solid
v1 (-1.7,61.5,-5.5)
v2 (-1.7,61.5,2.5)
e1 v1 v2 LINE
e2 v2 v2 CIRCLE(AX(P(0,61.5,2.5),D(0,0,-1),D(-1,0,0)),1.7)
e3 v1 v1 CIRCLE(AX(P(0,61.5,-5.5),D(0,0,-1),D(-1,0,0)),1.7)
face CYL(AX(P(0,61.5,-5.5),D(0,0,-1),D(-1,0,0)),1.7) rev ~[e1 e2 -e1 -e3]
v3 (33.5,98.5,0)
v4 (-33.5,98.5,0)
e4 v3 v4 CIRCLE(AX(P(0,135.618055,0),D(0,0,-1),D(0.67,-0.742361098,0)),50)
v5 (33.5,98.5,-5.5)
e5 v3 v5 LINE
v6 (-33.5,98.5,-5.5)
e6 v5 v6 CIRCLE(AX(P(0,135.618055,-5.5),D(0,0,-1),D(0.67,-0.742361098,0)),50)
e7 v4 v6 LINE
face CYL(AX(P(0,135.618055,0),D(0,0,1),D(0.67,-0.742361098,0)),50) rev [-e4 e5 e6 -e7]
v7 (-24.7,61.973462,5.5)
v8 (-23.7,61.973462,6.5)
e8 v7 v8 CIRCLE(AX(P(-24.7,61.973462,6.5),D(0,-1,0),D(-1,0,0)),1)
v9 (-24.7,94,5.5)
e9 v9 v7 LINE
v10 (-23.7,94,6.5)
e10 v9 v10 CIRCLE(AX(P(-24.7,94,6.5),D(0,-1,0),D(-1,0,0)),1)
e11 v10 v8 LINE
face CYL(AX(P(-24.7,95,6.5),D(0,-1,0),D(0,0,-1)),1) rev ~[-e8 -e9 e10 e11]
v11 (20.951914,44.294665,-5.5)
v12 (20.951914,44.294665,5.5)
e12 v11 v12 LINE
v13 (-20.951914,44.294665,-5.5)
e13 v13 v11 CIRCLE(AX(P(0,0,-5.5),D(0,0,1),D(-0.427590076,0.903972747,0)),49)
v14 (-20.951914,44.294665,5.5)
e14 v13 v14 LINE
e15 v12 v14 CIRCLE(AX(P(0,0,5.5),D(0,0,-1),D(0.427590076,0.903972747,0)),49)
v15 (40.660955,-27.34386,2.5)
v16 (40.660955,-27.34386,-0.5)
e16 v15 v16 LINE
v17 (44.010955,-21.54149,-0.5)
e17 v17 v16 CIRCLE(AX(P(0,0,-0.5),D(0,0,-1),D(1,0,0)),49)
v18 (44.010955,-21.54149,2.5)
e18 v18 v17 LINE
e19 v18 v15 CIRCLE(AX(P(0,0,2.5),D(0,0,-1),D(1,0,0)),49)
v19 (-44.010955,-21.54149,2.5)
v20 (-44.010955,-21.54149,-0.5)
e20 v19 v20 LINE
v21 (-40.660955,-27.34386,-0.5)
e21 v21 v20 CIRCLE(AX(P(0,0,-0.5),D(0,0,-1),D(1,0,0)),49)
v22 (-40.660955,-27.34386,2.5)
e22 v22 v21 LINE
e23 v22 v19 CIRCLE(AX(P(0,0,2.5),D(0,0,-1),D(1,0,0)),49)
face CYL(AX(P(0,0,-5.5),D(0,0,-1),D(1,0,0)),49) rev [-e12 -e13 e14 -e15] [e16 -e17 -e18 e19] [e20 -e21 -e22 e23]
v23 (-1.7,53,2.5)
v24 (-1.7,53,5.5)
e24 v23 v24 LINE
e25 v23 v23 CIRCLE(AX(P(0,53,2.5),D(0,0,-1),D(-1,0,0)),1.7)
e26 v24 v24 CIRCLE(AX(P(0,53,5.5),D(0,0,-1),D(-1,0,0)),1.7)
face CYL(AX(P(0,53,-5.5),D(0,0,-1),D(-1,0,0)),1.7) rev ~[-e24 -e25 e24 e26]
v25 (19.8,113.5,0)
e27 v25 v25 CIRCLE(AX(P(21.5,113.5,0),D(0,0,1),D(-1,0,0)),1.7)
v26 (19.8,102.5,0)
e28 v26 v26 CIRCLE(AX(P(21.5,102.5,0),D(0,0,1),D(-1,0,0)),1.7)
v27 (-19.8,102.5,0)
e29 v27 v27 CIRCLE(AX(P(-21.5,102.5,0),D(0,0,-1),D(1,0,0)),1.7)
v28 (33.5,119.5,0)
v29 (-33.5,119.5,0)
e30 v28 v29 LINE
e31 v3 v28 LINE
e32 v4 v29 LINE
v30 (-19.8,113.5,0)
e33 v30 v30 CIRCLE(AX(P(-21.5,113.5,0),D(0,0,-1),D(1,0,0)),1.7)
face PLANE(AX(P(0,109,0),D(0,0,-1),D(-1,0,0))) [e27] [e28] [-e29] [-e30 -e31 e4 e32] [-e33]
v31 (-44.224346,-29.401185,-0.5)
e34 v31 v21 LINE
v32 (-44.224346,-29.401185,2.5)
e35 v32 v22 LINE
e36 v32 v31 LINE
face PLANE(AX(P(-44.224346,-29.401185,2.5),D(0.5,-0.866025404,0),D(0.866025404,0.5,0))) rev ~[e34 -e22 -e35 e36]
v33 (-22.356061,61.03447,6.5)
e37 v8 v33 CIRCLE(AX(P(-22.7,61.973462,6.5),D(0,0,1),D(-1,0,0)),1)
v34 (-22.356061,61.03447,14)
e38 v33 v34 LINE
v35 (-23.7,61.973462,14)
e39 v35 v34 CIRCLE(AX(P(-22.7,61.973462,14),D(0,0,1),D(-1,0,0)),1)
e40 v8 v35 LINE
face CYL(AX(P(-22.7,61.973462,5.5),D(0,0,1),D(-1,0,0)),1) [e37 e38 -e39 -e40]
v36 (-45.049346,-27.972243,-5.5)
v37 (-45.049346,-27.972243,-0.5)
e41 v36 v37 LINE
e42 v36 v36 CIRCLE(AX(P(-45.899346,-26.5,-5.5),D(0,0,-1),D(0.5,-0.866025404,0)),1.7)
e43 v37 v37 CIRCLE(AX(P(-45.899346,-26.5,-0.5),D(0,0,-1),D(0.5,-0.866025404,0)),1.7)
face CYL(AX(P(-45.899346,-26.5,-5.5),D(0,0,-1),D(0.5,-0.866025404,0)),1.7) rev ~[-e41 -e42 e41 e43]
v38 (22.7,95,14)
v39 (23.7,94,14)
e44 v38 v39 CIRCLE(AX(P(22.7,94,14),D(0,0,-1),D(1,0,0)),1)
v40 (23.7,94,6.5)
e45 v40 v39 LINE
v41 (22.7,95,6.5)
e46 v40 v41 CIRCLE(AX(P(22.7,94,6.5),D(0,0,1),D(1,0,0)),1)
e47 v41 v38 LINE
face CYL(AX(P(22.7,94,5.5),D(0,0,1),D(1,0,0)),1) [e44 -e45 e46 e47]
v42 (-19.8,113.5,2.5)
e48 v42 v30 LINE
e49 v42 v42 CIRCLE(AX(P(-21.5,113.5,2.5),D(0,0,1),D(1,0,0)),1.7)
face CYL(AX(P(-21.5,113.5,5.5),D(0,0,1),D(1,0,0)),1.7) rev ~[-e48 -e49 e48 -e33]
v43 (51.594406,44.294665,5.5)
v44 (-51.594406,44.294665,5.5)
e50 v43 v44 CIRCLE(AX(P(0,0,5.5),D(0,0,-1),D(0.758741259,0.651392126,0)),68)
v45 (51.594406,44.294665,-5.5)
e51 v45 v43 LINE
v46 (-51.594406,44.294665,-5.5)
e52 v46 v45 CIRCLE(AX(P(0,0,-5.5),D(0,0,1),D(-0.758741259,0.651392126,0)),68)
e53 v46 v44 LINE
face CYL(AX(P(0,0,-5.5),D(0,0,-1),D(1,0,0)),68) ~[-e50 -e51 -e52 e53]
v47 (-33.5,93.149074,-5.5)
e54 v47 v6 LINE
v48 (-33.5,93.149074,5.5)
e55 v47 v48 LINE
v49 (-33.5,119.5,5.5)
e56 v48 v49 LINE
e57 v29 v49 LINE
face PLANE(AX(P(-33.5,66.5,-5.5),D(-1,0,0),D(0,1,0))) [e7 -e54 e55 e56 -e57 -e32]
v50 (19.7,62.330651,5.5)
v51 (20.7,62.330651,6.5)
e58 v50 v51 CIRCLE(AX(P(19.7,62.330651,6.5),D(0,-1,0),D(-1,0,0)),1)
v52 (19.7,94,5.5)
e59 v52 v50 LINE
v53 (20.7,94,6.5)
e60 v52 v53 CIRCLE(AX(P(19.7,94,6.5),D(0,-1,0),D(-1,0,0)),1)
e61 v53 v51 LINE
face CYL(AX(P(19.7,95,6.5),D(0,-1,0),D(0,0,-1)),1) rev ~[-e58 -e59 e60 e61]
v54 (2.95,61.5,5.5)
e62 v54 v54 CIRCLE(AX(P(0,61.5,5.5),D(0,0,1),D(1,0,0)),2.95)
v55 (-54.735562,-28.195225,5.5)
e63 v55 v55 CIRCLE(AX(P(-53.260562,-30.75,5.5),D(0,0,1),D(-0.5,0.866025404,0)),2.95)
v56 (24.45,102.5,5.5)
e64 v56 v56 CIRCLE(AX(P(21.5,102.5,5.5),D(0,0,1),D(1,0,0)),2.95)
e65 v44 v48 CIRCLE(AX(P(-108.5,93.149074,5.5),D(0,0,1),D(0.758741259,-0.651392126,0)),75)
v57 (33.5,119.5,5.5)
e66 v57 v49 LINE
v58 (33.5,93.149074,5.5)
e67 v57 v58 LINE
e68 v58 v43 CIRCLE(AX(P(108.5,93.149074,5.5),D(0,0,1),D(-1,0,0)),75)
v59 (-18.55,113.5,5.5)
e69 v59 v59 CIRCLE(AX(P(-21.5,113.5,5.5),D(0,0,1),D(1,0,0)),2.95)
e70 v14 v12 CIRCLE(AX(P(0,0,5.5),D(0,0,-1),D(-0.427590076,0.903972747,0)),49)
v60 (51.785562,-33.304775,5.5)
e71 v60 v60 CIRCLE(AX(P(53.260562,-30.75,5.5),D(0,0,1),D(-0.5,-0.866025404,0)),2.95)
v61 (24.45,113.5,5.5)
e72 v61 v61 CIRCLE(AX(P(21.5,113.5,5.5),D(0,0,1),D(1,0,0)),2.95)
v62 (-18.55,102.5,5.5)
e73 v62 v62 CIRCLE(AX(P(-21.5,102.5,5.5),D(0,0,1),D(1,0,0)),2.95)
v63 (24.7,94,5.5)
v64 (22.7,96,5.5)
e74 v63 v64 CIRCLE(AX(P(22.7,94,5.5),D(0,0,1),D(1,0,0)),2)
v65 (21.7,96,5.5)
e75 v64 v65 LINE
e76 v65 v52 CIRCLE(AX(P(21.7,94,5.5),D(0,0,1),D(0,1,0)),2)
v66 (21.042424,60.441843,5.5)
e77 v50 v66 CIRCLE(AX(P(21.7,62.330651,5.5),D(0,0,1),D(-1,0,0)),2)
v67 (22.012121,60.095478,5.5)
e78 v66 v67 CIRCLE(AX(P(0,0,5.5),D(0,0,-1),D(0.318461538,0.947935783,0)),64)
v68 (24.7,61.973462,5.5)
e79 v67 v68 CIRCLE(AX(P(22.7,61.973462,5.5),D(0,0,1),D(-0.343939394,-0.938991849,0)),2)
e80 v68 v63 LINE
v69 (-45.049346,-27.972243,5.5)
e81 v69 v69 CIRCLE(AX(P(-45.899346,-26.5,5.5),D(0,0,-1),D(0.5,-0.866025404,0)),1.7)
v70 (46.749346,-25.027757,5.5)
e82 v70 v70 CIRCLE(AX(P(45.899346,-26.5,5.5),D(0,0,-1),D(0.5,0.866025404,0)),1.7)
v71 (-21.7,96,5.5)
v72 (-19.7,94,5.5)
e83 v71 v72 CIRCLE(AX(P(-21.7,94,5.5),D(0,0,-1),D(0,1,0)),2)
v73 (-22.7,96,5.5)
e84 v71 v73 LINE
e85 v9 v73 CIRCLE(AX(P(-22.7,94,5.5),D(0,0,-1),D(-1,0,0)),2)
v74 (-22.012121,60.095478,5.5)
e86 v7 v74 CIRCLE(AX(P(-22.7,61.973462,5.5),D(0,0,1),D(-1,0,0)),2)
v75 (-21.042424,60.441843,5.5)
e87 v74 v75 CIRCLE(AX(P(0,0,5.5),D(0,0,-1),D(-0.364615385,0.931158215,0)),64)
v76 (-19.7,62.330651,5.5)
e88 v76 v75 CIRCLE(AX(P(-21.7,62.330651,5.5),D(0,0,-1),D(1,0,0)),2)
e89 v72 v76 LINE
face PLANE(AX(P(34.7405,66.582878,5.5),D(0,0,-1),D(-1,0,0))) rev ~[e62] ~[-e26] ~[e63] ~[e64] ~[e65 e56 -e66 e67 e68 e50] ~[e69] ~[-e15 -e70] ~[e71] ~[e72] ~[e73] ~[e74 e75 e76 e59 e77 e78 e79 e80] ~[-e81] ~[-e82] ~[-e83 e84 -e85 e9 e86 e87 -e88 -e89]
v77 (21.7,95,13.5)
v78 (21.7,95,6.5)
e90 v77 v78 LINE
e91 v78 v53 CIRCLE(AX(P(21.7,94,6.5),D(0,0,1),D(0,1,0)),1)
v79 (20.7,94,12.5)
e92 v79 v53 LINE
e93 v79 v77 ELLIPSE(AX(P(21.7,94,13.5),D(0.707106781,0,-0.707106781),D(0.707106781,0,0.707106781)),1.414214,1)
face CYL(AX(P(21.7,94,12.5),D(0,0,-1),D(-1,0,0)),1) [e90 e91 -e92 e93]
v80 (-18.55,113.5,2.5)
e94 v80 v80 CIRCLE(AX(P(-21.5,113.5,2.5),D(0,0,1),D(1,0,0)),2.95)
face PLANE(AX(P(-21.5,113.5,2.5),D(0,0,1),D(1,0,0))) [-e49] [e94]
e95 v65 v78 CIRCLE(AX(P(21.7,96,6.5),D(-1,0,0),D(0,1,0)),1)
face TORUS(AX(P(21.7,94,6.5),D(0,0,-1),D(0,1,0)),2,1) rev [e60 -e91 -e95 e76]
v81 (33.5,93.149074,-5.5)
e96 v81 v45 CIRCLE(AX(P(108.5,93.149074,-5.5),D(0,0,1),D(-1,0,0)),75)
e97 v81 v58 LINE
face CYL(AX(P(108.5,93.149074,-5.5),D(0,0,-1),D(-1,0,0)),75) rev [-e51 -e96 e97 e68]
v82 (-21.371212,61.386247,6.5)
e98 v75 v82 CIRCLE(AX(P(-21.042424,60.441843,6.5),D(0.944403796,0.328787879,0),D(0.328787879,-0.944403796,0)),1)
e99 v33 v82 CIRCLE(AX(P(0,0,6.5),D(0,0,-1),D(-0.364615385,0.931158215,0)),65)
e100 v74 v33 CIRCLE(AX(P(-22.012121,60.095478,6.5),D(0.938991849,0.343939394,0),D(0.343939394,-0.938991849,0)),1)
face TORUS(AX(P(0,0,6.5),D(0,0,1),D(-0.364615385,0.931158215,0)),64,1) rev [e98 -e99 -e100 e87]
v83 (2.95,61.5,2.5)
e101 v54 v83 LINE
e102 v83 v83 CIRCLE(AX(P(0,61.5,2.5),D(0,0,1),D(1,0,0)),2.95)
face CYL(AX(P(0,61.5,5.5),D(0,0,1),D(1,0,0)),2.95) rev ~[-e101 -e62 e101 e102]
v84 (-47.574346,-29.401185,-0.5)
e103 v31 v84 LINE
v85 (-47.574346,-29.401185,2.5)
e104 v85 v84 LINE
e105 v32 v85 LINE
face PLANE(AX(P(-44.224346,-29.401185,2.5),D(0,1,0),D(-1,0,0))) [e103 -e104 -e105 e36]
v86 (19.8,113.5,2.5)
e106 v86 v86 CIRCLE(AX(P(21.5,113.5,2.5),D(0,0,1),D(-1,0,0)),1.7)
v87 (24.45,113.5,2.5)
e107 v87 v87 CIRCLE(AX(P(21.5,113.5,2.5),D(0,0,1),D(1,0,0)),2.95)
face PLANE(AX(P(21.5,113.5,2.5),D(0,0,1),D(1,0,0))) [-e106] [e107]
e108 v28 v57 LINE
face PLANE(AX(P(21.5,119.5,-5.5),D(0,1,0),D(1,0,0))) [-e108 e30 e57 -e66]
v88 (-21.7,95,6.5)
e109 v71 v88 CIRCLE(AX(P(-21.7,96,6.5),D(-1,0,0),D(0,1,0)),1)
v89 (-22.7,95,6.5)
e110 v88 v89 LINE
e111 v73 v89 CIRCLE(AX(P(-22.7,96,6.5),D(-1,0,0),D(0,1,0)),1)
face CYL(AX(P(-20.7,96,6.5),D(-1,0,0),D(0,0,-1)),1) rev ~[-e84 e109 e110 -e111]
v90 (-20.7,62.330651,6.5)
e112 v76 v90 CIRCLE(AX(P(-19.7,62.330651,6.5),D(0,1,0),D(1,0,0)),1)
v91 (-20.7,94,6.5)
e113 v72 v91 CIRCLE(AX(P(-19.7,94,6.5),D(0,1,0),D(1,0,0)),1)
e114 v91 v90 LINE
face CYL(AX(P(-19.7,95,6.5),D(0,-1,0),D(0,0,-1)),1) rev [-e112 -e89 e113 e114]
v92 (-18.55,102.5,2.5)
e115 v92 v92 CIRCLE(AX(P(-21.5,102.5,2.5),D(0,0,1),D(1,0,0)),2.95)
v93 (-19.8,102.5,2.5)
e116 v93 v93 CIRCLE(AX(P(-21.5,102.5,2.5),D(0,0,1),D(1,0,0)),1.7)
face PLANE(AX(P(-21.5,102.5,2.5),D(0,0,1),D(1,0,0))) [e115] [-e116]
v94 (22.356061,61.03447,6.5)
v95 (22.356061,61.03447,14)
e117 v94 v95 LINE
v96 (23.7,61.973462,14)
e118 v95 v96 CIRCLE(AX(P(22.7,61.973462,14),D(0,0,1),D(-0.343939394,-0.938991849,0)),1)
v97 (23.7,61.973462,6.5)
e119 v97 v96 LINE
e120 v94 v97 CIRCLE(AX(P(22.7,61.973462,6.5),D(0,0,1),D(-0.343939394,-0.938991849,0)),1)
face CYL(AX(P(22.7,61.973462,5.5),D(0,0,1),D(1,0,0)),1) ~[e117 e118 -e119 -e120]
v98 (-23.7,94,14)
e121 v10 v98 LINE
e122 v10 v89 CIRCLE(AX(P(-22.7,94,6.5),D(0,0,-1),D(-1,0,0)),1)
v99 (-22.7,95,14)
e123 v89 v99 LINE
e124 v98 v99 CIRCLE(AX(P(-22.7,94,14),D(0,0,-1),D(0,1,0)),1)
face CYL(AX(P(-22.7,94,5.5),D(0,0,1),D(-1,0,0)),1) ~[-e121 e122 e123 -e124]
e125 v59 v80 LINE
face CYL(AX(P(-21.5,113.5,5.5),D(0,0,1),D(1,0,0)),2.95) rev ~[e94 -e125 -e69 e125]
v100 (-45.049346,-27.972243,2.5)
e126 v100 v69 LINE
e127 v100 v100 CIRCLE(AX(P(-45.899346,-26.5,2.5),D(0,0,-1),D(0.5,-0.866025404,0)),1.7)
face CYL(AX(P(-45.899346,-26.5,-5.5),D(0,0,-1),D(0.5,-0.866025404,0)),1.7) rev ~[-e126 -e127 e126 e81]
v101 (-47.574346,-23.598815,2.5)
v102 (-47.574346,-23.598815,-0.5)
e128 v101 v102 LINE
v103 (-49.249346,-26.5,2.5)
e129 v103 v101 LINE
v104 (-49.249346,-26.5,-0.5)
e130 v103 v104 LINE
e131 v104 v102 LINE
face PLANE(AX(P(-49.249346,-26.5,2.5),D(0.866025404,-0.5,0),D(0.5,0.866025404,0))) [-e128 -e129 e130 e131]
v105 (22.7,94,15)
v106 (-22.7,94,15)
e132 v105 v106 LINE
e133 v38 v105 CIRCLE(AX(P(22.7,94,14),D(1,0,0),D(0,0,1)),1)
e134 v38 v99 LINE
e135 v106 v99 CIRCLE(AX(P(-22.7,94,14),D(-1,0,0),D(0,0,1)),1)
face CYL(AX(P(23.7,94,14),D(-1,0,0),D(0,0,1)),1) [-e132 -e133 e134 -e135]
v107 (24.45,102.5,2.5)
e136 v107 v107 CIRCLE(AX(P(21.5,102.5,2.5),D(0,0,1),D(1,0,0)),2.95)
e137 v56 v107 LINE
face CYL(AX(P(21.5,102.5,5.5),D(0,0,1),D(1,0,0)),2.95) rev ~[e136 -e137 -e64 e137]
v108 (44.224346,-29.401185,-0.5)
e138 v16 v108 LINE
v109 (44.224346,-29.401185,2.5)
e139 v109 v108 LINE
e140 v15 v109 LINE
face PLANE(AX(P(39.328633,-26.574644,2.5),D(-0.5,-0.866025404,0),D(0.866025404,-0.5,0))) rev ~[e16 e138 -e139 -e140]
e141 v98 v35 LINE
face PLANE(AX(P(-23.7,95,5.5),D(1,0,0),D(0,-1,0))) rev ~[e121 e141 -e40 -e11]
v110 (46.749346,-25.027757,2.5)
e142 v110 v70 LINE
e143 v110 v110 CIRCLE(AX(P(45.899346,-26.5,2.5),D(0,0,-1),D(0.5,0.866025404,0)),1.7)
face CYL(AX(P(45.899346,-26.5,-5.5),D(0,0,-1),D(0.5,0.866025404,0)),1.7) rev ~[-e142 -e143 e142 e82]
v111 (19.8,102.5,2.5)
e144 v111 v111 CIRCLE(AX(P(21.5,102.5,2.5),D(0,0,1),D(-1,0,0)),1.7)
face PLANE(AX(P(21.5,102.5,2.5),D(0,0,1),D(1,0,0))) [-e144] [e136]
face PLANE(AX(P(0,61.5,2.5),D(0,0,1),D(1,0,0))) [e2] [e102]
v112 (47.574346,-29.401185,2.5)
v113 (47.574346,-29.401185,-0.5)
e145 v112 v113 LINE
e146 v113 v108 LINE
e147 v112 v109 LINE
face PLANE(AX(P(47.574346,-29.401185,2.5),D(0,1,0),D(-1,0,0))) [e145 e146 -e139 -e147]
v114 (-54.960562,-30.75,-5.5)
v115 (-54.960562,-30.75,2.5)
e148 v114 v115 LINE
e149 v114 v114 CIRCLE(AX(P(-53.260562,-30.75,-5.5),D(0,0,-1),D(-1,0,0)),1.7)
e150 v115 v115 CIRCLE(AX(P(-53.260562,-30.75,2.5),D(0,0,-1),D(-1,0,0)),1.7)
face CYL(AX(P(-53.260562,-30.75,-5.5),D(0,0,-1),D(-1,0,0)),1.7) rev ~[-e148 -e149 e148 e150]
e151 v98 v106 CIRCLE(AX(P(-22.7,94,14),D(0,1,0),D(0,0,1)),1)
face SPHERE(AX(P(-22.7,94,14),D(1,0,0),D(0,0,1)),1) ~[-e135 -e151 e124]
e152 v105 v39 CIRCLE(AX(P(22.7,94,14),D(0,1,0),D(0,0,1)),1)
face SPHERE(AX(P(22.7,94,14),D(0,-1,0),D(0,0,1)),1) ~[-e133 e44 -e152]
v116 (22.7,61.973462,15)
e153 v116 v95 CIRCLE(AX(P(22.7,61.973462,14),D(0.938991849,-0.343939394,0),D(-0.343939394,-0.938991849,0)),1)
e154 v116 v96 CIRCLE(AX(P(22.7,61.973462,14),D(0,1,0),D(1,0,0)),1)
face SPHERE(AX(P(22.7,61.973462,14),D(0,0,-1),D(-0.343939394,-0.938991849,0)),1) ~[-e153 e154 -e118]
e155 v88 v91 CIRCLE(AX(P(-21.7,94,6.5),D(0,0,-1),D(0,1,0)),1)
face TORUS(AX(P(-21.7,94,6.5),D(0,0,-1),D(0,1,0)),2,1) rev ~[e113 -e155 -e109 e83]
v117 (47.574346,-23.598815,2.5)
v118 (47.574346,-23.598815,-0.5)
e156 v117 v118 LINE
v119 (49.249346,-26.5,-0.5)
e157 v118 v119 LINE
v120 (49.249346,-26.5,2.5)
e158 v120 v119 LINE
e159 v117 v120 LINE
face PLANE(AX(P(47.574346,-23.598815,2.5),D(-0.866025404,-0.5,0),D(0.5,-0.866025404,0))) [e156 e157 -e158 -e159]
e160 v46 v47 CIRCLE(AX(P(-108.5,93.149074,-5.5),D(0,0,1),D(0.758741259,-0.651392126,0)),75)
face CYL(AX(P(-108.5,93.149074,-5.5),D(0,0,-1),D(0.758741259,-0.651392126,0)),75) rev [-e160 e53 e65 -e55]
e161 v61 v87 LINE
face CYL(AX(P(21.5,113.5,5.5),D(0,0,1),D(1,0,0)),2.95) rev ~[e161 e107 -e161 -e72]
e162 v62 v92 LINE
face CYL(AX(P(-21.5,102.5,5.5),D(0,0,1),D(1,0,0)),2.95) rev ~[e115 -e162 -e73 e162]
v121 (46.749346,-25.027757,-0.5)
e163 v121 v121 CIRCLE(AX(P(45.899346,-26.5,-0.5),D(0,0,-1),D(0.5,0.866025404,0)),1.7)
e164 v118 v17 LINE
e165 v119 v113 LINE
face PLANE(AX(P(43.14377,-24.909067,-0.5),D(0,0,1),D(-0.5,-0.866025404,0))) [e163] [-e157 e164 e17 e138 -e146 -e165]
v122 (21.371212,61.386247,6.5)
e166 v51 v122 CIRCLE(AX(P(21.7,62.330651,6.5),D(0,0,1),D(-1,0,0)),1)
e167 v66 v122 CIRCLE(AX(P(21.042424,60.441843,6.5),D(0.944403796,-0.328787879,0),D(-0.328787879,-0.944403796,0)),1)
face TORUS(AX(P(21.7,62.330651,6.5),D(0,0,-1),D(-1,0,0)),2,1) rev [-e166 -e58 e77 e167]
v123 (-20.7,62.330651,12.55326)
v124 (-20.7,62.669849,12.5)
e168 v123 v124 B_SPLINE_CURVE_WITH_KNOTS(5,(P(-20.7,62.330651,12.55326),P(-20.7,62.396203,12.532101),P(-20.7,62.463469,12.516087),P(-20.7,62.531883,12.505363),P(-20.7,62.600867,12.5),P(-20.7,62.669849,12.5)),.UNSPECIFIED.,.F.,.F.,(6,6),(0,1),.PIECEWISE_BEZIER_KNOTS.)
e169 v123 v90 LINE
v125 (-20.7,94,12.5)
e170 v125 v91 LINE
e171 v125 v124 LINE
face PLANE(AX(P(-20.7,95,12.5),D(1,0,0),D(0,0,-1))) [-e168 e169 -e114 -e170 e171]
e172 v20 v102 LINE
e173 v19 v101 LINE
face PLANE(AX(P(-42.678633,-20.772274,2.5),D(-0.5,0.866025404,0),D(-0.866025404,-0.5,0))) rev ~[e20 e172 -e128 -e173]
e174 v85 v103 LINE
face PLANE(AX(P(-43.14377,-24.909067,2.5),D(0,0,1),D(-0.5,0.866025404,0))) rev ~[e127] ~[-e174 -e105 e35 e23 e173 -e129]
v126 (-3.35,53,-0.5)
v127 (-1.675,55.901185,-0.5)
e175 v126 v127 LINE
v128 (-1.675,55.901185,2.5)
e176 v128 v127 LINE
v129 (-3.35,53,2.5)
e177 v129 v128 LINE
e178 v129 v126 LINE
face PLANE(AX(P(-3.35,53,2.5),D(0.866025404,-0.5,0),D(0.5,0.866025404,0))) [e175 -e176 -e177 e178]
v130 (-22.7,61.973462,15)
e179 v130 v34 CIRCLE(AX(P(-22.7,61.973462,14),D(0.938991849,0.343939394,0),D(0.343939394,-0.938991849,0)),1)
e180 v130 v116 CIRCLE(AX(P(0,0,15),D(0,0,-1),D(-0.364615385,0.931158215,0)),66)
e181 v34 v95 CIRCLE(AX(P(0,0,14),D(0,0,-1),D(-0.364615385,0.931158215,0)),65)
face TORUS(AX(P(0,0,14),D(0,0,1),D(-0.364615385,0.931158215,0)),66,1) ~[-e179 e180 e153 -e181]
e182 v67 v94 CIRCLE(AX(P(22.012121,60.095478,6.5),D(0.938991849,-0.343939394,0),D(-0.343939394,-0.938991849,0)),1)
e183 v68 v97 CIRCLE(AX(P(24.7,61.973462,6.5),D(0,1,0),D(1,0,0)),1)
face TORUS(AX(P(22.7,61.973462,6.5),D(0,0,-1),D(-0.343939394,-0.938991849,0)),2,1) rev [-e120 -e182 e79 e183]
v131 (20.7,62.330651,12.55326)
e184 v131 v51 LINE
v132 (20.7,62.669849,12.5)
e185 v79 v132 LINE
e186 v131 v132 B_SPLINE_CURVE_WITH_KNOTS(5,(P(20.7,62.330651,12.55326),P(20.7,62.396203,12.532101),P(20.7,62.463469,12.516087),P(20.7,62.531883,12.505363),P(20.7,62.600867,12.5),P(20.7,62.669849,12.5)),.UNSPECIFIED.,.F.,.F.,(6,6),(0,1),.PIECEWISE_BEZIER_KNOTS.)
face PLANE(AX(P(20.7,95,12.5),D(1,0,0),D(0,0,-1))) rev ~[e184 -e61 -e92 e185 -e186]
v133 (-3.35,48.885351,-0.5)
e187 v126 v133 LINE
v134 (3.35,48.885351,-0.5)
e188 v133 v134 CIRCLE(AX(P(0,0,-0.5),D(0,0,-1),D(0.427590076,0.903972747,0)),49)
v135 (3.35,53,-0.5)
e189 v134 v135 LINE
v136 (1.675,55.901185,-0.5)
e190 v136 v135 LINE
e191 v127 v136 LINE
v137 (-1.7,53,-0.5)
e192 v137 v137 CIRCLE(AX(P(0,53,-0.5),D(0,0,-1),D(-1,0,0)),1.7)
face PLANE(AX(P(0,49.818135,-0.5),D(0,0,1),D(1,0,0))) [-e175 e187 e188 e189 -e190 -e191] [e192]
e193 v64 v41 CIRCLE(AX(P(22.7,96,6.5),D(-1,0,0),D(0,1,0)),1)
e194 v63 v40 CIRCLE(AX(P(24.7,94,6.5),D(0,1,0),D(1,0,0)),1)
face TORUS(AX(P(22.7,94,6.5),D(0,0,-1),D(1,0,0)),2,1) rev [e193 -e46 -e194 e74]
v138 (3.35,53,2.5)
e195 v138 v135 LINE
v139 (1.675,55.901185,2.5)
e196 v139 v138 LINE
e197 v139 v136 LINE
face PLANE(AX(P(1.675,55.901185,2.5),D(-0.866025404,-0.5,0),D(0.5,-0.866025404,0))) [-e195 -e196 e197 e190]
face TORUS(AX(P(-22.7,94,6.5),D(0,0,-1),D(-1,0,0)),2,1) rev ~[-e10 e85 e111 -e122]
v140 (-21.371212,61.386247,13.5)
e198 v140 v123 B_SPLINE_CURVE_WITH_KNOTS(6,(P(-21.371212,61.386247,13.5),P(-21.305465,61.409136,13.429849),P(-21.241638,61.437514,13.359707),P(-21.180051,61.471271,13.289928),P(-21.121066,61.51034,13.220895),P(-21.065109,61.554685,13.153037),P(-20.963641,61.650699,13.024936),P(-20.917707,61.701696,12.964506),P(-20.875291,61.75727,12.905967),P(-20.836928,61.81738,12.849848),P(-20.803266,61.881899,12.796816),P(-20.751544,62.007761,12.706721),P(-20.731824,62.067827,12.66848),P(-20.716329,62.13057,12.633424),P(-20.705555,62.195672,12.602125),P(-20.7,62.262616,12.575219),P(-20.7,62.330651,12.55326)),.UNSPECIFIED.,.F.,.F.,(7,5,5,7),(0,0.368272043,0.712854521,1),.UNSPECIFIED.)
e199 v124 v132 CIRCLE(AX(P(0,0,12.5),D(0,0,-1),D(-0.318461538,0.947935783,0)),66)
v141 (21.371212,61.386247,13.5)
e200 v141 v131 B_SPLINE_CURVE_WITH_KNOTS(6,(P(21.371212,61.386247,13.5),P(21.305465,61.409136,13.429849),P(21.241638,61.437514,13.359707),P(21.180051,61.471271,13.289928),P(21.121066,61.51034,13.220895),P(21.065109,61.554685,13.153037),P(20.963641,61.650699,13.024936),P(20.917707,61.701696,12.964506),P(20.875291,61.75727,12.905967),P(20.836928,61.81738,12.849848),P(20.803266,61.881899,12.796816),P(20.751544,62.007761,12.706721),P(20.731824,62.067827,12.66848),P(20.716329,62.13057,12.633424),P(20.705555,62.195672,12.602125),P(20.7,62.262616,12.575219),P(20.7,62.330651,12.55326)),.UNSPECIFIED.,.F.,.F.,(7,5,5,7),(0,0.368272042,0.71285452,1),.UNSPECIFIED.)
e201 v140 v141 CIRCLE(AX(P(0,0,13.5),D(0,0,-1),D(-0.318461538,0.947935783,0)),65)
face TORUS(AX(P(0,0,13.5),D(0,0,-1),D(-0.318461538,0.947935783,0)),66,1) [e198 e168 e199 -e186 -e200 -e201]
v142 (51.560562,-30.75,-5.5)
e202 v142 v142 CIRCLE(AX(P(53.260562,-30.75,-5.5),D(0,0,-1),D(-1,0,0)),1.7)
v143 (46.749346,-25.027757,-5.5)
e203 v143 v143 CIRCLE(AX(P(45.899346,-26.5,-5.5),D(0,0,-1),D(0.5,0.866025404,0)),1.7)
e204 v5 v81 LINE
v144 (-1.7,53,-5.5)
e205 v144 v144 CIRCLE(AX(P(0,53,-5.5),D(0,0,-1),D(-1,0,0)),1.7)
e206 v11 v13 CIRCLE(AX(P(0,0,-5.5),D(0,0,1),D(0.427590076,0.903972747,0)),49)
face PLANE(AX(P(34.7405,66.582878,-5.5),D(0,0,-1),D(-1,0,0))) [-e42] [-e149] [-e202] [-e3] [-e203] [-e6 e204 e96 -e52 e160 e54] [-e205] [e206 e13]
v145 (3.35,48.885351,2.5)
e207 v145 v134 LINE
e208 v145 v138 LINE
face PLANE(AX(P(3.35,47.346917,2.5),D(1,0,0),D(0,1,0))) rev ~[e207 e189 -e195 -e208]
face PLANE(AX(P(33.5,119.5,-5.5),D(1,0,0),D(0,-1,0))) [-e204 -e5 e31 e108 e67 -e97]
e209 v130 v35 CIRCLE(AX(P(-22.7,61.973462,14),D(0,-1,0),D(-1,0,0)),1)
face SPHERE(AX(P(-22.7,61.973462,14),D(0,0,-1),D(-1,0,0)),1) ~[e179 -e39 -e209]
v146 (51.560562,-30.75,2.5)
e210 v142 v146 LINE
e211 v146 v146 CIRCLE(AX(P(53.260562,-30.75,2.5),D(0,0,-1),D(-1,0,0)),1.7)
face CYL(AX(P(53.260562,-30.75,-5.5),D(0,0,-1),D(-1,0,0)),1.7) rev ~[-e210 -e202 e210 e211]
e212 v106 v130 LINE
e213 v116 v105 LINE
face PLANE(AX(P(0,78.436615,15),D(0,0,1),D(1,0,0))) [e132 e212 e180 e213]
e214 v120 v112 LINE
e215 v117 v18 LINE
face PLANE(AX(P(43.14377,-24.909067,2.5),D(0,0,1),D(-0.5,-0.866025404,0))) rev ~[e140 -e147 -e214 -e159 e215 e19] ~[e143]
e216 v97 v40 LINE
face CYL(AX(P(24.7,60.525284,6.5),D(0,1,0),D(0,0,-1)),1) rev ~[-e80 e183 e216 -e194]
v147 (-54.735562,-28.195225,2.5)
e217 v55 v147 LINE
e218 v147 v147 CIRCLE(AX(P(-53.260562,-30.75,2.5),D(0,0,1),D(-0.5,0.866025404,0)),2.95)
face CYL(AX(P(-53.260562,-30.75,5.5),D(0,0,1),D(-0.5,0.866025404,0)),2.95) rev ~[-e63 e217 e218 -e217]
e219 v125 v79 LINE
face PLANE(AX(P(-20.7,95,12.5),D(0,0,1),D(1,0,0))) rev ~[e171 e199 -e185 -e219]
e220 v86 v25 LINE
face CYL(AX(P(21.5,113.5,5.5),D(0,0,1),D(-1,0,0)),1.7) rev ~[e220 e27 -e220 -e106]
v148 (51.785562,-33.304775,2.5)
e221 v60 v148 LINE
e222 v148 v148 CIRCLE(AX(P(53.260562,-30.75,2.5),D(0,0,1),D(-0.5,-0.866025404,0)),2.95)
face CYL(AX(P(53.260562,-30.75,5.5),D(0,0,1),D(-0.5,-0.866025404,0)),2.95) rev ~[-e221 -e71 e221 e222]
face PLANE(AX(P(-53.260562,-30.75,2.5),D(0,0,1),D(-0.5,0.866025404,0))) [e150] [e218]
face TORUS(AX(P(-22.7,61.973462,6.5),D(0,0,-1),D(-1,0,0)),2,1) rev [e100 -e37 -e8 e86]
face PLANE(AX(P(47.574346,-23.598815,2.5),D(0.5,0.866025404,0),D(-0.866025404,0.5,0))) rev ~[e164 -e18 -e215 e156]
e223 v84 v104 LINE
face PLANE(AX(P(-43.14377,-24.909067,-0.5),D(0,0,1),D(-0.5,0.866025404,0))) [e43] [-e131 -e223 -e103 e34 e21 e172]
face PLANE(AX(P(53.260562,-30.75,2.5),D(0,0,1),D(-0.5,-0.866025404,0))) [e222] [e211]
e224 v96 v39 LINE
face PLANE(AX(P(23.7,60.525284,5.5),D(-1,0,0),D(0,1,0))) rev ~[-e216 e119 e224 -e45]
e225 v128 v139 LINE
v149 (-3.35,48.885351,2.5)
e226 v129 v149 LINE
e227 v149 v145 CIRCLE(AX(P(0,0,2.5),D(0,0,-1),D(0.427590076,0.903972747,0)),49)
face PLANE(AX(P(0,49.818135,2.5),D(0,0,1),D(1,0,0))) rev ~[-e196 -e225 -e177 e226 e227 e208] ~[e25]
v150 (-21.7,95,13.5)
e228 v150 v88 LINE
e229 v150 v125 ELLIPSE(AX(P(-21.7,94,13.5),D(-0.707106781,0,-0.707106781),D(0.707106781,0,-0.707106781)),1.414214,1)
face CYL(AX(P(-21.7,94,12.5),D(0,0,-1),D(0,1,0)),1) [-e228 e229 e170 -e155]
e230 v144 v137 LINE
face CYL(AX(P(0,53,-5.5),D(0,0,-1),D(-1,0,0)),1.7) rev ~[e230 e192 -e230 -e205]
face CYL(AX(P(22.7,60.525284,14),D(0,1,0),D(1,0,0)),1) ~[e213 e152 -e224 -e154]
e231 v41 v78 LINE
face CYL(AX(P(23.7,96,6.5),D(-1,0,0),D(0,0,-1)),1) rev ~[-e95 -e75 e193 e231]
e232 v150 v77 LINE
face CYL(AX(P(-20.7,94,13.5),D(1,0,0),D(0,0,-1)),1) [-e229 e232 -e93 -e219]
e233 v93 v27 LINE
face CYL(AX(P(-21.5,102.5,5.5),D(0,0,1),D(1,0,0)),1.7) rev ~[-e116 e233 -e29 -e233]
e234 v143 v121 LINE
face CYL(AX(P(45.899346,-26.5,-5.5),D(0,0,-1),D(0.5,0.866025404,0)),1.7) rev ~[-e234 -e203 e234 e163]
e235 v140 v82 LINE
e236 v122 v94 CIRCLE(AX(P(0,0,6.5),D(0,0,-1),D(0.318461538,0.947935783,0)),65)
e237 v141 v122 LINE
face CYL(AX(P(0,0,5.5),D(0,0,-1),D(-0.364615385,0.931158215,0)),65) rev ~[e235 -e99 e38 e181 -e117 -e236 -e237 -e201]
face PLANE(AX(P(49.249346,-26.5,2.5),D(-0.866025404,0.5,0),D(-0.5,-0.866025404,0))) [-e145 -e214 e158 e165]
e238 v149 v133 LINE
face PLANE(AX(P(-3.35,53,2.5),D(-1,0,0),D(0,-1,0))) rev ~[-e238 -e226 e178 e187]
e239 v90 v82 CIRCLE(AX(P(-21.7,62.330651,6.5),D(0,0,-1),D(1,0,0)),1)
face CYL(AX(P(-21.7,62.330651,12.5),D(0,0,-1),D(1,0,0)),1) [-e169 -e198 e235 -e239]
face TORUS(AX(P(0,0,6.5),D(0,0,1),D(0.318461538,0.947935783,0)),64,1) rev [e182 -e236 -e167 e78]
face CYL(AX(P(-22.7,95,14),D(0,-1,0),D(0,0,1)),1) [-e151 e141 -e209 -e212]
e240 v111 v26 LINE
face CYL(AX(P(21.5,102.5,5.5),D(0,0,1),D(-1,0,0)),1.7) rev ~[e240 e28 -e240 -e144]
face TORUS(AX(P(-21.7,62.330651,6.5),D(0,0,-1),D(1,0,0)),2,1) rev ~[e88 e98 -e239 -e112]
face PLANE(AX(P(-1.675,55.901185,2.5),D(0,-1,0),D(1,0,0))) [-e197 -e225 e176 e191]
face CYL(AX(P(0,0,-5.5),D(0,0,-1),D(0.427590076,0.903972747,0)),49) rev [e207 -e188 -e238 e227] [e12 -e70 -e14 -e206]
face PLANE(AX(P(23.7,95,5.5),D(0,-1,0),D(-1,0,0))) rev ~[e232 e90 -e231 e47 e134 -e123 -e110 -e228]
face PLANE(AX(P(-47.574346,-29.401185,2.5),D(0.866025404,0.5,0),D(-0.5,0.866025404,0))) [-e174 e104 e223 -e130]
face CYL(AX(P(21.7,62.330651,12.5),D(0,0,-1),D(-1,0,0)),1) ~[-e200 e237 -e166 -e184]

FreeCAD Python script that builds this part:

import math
import FreeCAD as App
import Part
import Sketcher

V = App.Vector
Q = App.Units.Quantity


def edges_at(feature, points):
    """Names of the edges that pass closest to the given points."""
    edges = feature.Shape.Edges
    near = lambda p: min(range(len(edges)), key=lambda i: edges[i].distToShape(Part.Vertex(*p))[0])
    return sorted({f"Edge{near(p) + 1}" for p in points})

doc = App.newDocument("Part")
body = doc.addObject("PartDesign::Body", "Body")

# Sketch on XY plane
sketch1 = body.newObject("Sketcher::SketchObject", "Sketch")
sketch1.AttachmentSupport = (doc.getObject("XY_Plane"), [""])
sketch1.MapMode = "FlatFace"
sketch1.addGeometry(Part.Circle(V(0, 0, 0), V(0, 0, 1), 68), False)
sketch1.addGeometry(Part.Circle(V(0, 0, 0), V(0, 0, 1), 49), False)
sketch1.addConstraint(Sketcher.Constraint("Coincident", 0, 3, -1, 1))
sketch1.addConstraint(Sketcher.Constraint("Coincident", 1, 3, -1, 1))
sketch1.addConstraint(Sketcher.Constraint("Diameter", 0, 136.0))
sketch1.addConstraint(Sketcher.Constraint("Diameter", 1, 98.0))
pad1 = body.newObject("PartDesign::Pad", "Pad")
pad1.Profile = sketch1
pad1.Type = "TwoLengths"
pad1.Length = 5.5
pad1.Length2 = 5.5

# Sketch on XY plane
sketch2 = body.newObject("Sketcher::SketchObject", "Sketch001")
sketch2.AttachmentSupport = (doc.getObject("XY_Plane"), [""])
sketch2.MapMode = "FlatFace"
sketch2.AttachmentOffset = App.Placement(V(0, 0, -5.5), App.Rotation())
sketch2.addGeometry(Part.ArcOfCircle(Part.Circle(V(109, 93, 0), V(0, 0, 1), 75), math.radians(180), math.radians(221)), False)
sketch2.addGeometry(Part.LineSegment(V(52, 44, 0), V(21, 44, 0)), False)
sketch2.addGeometry(Part.ArcOfCircle(Part.Circle(V(0, 0, 0), V(0, 0, 1), 49), math.radians(65), math.radians(115)), False)
sketch2.addGeometry(Part.LineSegment(V(-21, 44, 0), V(-52, 44, 0)), False)
sketch2.addGeometry(Part.ArcOfCircle(Part.Circle(V(-109, 93, 0), V(0, 0, 1), 75), math.radians(-41), math.radians(0)), False)
sketch2.addGeometry(Part.LineSegment(V(-34, 93, 0), V(-34, 120, 0)), False)
sketch2.addGeometry(Part.LineSegment(V(-34, 120, 0), V(34, 120, 0)), False)
sketch2.addGeometry(Part.LineSegment(V(34, 120, 0), V(34, 93, 0)), False)
sketch2.addConstraint(Sketcher.Constraint("Coincident", 0, 2, 1, 1))
sketch2.addConstraint(Sketcher.Constraint("Coincident", 1, 2, 2, 1))
sketch2.addConstraint(Sketcher.Constraint("Coincident", 2, 2, 3, 1))
sketch2.addConstraint(Sketcher.Constraint("Coincident", 3, 2, 4, 1))
sketch2.addConstraint(Sketcher.Constraint("Tangent", 4, 2, 5, 1))
sketch2.addConstraint(Sketcher.Constraint("Coincident", 5, 2, 6, 1))
sketch2.addConstraint(Sketcher.Constraint("Coincident", 6, 2, 7, 1))
sketch2.addConstraint(Sketcher.Constraint("Tangent", 7, 2, 0, 1))
sketch2.addConstraint(Sketcher.Constraint("Horizontal", 1))
sketch2.addConstraint(Sketcher.Constraint("Horizontal", 3))
sketch2.addConstraint(Sketcher.Constraint("Vertical", 5))
sketch2.addConstraint(Sketcher.Constraint("Horizontal", 6))
sketch2.addConstraint(Sketcher.Constraint("Vertical", 7))
sketch2.addConstraint(Sketcher.Constraint("Coincident", 2, 3, -1, 1))
sketch2.addConstraint(Sketcher.Constraint("Equal", 0, 4))
sketch2.addConstraint(Sketcher.Constraint("Symmetric", 0, 3, 4, 3, -2))
sketch2.addConstraint(Sketcher.Constraint("Horizontal", 1, 2, 2, 2))
sketch2.addConstraint(Sketcher.Constraint("Radius", 0, 75.0))
sketch2.addConstraint(Sketcher.Constraint("Radius", 2, 49.0))
sketch2.addConstraint(Sketcher.Constraint("DistanceX", 6, 1, 6, 2, 67.0))
sketch2.addConstraint(Sketcher.Constraint("DistanceY", -1, 1, 5, 2, 119.5))
sketch2.addConstraint(Sketcher.Constraint("DistanceX", 1, 2, 1, 1, 30.642492))
sketch2.addConstraint(Sketcher.Constraint("DistanceY", 5, 1, 5, 2, 26.350926))
pad2 = body.newObject("PartDesign::Pad", "Pad001")
pad2.Profile = sketch2
pad2.Length = 11

# Sketch on XY plane
sketch3 = body.newObject("Sketcher::SketchObject", "Sketch002")
sketch3.AttachmentSupport = (doc.getObject("XY_Plane"), [""])
sketch3.MapMode = "FlatFace"
sketch3.AttachmentOffset = App.Placement(V(0, 0, 5.5), App.Rotation())
sketch3.addGeometry(Part.Circle(V(-21.5, 113.5, 0), V(0, 0, 1), 1.7), False)
sketch3.addGeometry(Part.Circle(V(-21.5, 102.5, 0), V(0, 0, 1), 1.7), False)
sketch3.addGeometry(Part.Circle(V(21.5, 113.5, 0), V(0, 0, 1), 1.7), False)
sketch3.addGeometry(Part.Circle(V(21.5, 102.5, 0), V(0, 0, 1), 1.7), False)
sketch3.addConstraint(Sketcher.Constraint("Equal", 0, 1))
sketch3.addConstraint(Sketcher.Constraint("Equal", 1, 2))
sketch3.addConstraint(Sketcher.Constraint("Equal", 2, 3))
sketch3.addConstraint(Sketcher.Constraint("Symmetric", 0, 3, 2, 3, -2))
sketch3.addConstraint(Sketcher.Constraint("Symmetric", 1, 3, 3, 3, -2))
sketch3.addConstraint(Sketcher.Constraint("Vertical", 0, 3, 1, 3))
sketch3.addConstraint(Sketcher.Constraint("Diameter", 0, 3.4))
sketch3.addConstraint(Sketcher.Constraint("DistanceY", 1, 3, 0, 3, 11.0))
sketch3.addConstraint(Sketcher.Constraint("DistanceX", 0, 3, 2, 3, 43.0))
sketch3.addConstraint(Sketcher.Constraint("DistanceY", -1, 1, 0, 3, 113.5))
pocket1 = body.newObject("PartDesign::Pocket", "Pocket")
pocket1.Profile = sketch3
pocket1.Type = "ThroughAll"

# Sketch on XY plane
sketch4 = body.newObject("Sketcher::SketchObject", "Sketch003")
sketch4.AttachmentSupport = (doc.getObject("XY_Plane"), [""])
sketch4.MapMode = "FlatFace"
sketch4.AttachmentOffset = App.Placement(V(0, 0, 5.5), App.Rotation())
sketch4.addGeometry(Part.Circle(V(-21.5, 113.5, 0), V(0, 0, 1), 3), False)
sketch4.addGeometry(Part.Circle(V(-21.5, 102.5, 0), V(0, 0, 1), 3), False)
sketch4.addGeometry(Part.Circle(V(21.5, 102.5, 0), V(0, 0, 1), 3), False)
sketch4.addGeometry(Part.Circle(V(21.5, 113.5, 0), V(0, 0, 1), 3), False)
sketch4.addConstraint(Sketcher.Constraint("Equal", 0, 1))
sketch4.addConstraint(Sketcher.Constraint("Equal", 1, 2))
sketch4.addConstraint(Sketcher.Constraint("Equal", 2, 3))
sketch4.addConstraint(Sketcher.Constraint("Symmetric", 1, 3, 2, 3, -2))
sketch4.addConstraint(Sketcher.Constraint("Symmetric", 0, 3, 3, 3, -2))
sketch4.addConstraint(Sketcher.Constraint("Vertical", 0, 3, 1, 3))
sketch4.addConstraint(Sketcher.Constraint("Diameter", 0, 5.9))
sketch4.addConstraint(Sketcher.Constraint("DistanceY", 1, 3, 0, 3, 11.0))
sketch4.addConstraint(Sketcher.Constraint("DistanceX", 1, 3, 2, 3, 43.0))
sketch4.addConstraint(Sketcher.Constraint("DistanceY", -1, 1, 0, 3, 113.5))
pocket2 = body.newObject("PartDesign::Pocket", "Pocket001")
pocket2.Profile = sketch4
pocket2.Length = 3

# Sketch on XY plane
sketch5 = body.newObject("Sketcher::SketchObject", "Sketch004")
sketch5.AttachmentSupport = (doc.getObject("XY_Plane"), [""])
sketch5.MapMode = "FlatFace"
sketch5.addGeometry(Part.LineSegment(V(33.5, 119.5, 0), V(33.5, 98.5, 0)), False)
sketch5.addGeometry(Part.ArcOfCircle(Part.Circle(V(0, 135.6, 0), V(0, 0, 1), 50), math.radians(-132), math.radians(-48)), False)
sketch5.addGeometry(Part.LineSegment(V(-33.5, 98.5, 0), V(-33.5, 119.5, 0)), False)
sketch5.addGeometry(Part.LineSegment(V(-33.5, 119.5, 0), V(33.5, 119.5, 0)), False)
sketch5.addGeometry(Part.Circle(V(21.5, 102.5, 0), V(0, 0, 1), 1.7), False)
sketch5.addGeometry(Part.Circle(V(-21.5, 102.5, 0), V(0, 0, 1), 1.7), False)
sketch5.addGeometry(Part.Circle(V(21.5, 113.5, 0), V(0, 0, 1), 1.7), False)
sketch5.addGeometry(Part.Circle(V(-21.5, 113.5, 0), V(0, 0, 1), 1.7), False)
sketch5.addConstraint(Sketcher.Constraint("Coincident", 0, 2, 1, 2))
sketch5.addConstraint(Sketcher.Constraint("Coincident", 1, 1, 2, 1))
sketch5.addConstraint(Sketcher.Constraint("Coincident", 2, 2, 3, 1))
sketch5.addConstraint(Sketcher.Constraint("Coincident", 3, 2, 0, 1))
sketch5.addConstraint(Sketcher.Constraint("Vertical", 0))
sketch5.addConstraint(Sketcher.Constraint("Vertical", 2))
sketch5.addConstraint(Sketcher.Constraint("Horizontal", 3))
sketch5.addConstraint(Sketcher.Constraint("Equal", 4, 5))
sketch5.addConstraint(Sketcher.Constraint("Equal", 5, 6))
sketch5.addConstraint(Sketcher.Constraint("Equal", 6, 7))
sketch5.addConstraint(Sketcher.Constraint("Symmetric", 4, 3, 5, 3, -2))
sketch5.addConstraint(Sketcher.Constraint("Symmetric", 6, 3, 7, 3, -2))
sketch5.addConstraint(Sketcher.Constraint("Symmetric", 0, 2, 1, 1, -2))
sketch5.addConstraint(Sketcher.Constraint("Vertical", 4, 3, 6, 3))
sketch5.addConstraint(Sketcher.Constraint("Radius", 1, 50.0))
sketch5.addConstraint(Sketcher.Constraint("Diameter", 4, 3.4))
sketch5.addConstraint(Sketcher.Constraint("DistanceX", 3, 1, 3, 2, 67.0))
sketch5.addConstraint(Sketcher.Constraint("DistanceY", 0, 2, 0, 1, 21.0))
sketch5.addConstraint(Sketcher.Constraint("DistanceX", 5, 3, 4, 3, 43.0))
sketch5.addConstraint(Sketcher.Constraint("DistanceY", 4, 3, 6, 3, 11.0))
sketch5.addConstraint(Sketcher.Constraint("DistanceY", 0, 2, 4, 3, 4.0))
sketch5.addConstraint(Sketcher.Constraint("DistanceY", -1, 1, 4, 3, 102.5))
pocket3 = body.newObject("PartDesign::Pocket", "Pocket002")
pocket3.Profile = sketch5
pocket3.Length = 5.5

# Sketch on XY plane
sketch6 = body.newObject("Sketcher::SketchObject", "Sketch005")
sketch6.AttachmentSupport = (doc.getObject("XY_Plane"), [""])
sketch6.MapMode = "FlatFace"
sketch6.AttachmentOffset = App.Placement(V(0, 0, -5.5), App.Rotation())
sketch6.addGeometry(Part.Circle(V(0, 61.5, 0), V(0, 0, 1), 1.7), False)
sketch6.addGeometry(Part.Circle(V(-53.3, -30.8, 0), V(0, 0, 1), 1.7), False)
sketch6.addGeometry(Part.Circle(V(53.3, -30.8, 0), V(0, 0, 1), 1.7), False)
sketch6.addConstraint(Sketcher.Constraint("Equal", 0, 1))
sketch6.addConstraint(Sketcher.Constraint("Equal", 1, 2))
sketch6.addConstraint(Sketcher.Constraint("Symmetric", 1, 3, 2, 3, -2))
sketch6.addConstraint(Sketcher.Constraint("PointOnObject", 0, 3, -2))
sketch6.addConstraint(Sketcher.Constraint("Diameter", 0, 3.4))
sketch6.addConstraint(Sketcher.Constraint("DistanceY", -1, 1, 0, 3, 61.5))
sketch6.addConstraint(Sketcher.Constraint("DistanceY", 1, 3, -1, 1, 30.75))
sketch6.addConstraint(Sketcher.Constraint("DistanceX", 1, 3, -1, 1, 53.260562))
pocket4 = body.newObject("PartDesign::Pocket", "Pocket003")
pocket4.Profile = sketch6
pocket4.Type = "ThroughAll"
pocket4.Reversed = True

# Sketch on XY plane
sketch7 = body.newObject("Sketcher::SketchObject", "Sketch006")
sketch7.AttachmentSupport = (doc.getObject("XY_Plane"), [""])
sketch7.MapMode = "FlatFace"
sketch7.AttachmentOffset = App.Placement(V(0, 0, -5.5), App.Rotation())
sketch7.addGeometry(Part.Circle(V(0, 53, 0), V(0, 0, 1), 1.7), False)
sketch7.addConstraint(Sketcher.Constraint("PointOnObject", 0, 3, -2))
sketch7.addConstraint(Sketcher.Constraint("Diameter", 0, 3.4))
sketch7.addConstraint(Sketcher.Constraint("DistanceY", -1, 1, 0, 3, 53.0))
pocket5 = body.newObject("PartDesign::Pocket", "Pocket004")
pocket5.Profile = sketch7
pocket5.Type = "ThroughAll"
pocket5.Reversed = True
doc.recompute()

polarpattern = body.newObject("PartDesign::PolarPattern", "PolarPattern")
polarpattern.Originals = [pocket5]
polarpattern.Axis = (doc.getObject("Z_Axis"), [""])
polarpattern.Angle = 360
polarpattern.Occurrences = 3
body.Tip = polarpattern

# Sketch on XY plane
sketch8 = body.newObject("Sketcher::SketchObject", "Sketch007")
sketch8.AttachmentSupport = (doc.getObject("XY_Plane"), [""])
sketch8.MapMode = "FlatFace"
sketch8.AttachmentOffset = App.Placement(V(0, 0, 2.5), App.Rotation())
sketch8.addGeometry(Part.LineSegment(V(-3.4, 47.3, 0), V(3.4, 47.3, 0)), False)
sketch8.addGeometry(Part.LineSegment(V(3.4, 47.3, 0), V(3.4, 53, 0)), False)
sketch8.addGeometry(Part.LineSegment(V(3.4, 53, 0), V(1.7, 55.9, 0)), False)
sketch8.addGeometry(Part.LineSegment(V(1.7, 55.9, 0), V(-1.7, 55.9, 0)), False)
sketch8.addGeometry(Part.LineSegment(V(-1.7, 55.9, 0), V(-3.4, 53, 0)), False)
sketch8.addGeometry(Part.LineSegment(V(-3.4, 53, 0), V(-3.4, 47.3, 0)), False)
sketch8.addConstraint(Sketcher.Constraint("Coincident", 0, 2, 1, 1))
sketch8.addConstraint(Sketcher.Constraint("Coincident", 1, 2, 2, 1))
sketch8.addConstraint(Sketcher.Constraint("Coincident", 2, 2, 3, 1))
sketch8.addConstraint(Sketcher.Constraint("Coincident", 3, 2, 4, 1))
sketch8.addConstraint(Sketcher.Constraint("Coincident", 4, 2, 5, 1))
sketch8.addConstraint(Sketcher.Constraint("Coincident", 5, 2, 0, 1))
sketch8.addConstraint(Sketcher.Constraint("Horizontal", 0))
sketch8.addConstraint(Sketcher.Constraint("Vertical", 1))
sketch8.addConstraint(Sketcher.Constraint("Horizontal", 3))
sketch8.addConstraint(Sketcher.Constraint("Vertical", 5))
sketch8.addConstraint(Sketcher.Constraint("Symmetric", 1, 2, 4, 2, -2))
sketch8.addConstraint(Sketcher.Constraint("Equal", 2, 4))
sketch8.addConstraint(Sketcher.Constraint("Angle", 2, Q("120 deg")))
sketch8.addConstraint(Sketcher.Constraint("DistanceX", 0, 1, 0, 2, 6.7))
sketch8.addConstraint(Sketcher.Constraint("DistanceY", -1, 1, 1, 2, 53.0))
sketch8.addConstraint(Sketcher.Constraint("DistanceX", 3, 2, 3, 1, 3.35))
sketch8.addConstraint(Sketcher.Constraint("DistanceY", 1, 1, 1, 2, 5.653083))
pocket6 = body.newObject("PartDesign::Pocket", "Pocket005")
pocket6.Profile = sketch8
pocket6.Length = 3
doc.recompute()

polarpattern2 = body.newObject("PartDesign::PolarPattern", "PolarPattern001")
polarpattern2.Originals = [pocket6]
polarpattern2.Axis = (doc.getObject("Z_Axis"), [""])
polarpattern2.Angle = 360
polarpattern2.Occurrences = 3
body.Tip = polarpattern2

# Sketch on XY plane
sketch9 = body.newObject("Sketcher::SketchObject", "Sketch008")
sketch9.AttachmentSupport = (doc.getObject("XY_Plane"), [""])
sketch9.MapMode = "FlatFace"
sketch9.AttachmentOffset = App.Placement(V(0, 0, 5.5), App.Rotation())
sketch9.addGeometry(Part.Circle(V(0, 61.5, 0), V(0, 0, 1), 3), False)
sketch9.addConstraint(Sketcher.Constraint("PointOnObject", 0, 3, -2))
sketch9.addConstraint(Sketcher.Constraint("Diameter", 0, 5.9))
sketch9.addConstraint(Sketcher.Constraint("DistanceY", -1, 1, 0, 3, 61.5))
pocket7 = body.newObject("PartDesign::Pocket", "Pocket006")
pocket7.Profile = sketch9
pocket7.Length = 3
doc.recompute()

polarpattern3 = body.newObject("PartDesign::PolarPattern", "PolarPattern002")
polarpattern3.Originals = [pocket7]
polarpattern3.Axis = (doc.getObject("Z_Axis"), [""])
polarpattern3.Angle = 360
polarpattern3.Occurrences = 3
body.Tip = polarpattern3

# Sketch on XY plane
sketch10 = body.newObject("Sketcher::SketchObject", "Sketch009")
sketch10.AttachmentSupport = (doc.getObject("XY_Plane"), [""])
sketch10.MapMode = "FlatFace"
sketch10.AttachmentOffset = App.Placement(V(0, 0, 5.5), App.Rotation())
sketch10.addGeometry(Part.LineSegment(V(-24, 95, 0), V(-24, 61, 0)), False)
sketch10.addGeometry(Part.ArcOfCircle(Part.Circle(V(0, 0, 0), V(0, 0, 1), 65), math.radians(69), math.radians(111)), False)
sketch10.addGeometry(Part.LineSegment(V(24, 61, 0), V(24, 95, 0)), False)
sketch10.addGeometry(Part.LineSegment(V(24, 95, 0), V(-24, 95, 0)), False)
sketch10.addConstraint(Sketcher.Constraint("Coincident", 0, 2, 1, 2))
sketch10.addConstraint(Sketcher.Constraint("Coincident", 1, 1, 2, 1))
sketch10.addConstraint(Sketcher.Constraint("Coincident", 2, 2, 3, 1))
sketch10.addConstraint(Sketcher.Constraint("Coincident", 3, 2, 0, 1))
sketch10.addConstraint(Sketcher.Constraint("Vertical", 0))
sketch10.addConstraint(Sketcher.Constraint("Vertical", 2))
sketch10.addConstraint(Sketcher.Constraint("Horizontal", 3))
sketch10.addConstraint(Sketcher.Constraint("Coincident", 1, 3, -1, 1))
sketch10.addConstraint(Sketcher.Constraint("Horizontal", 0, 2, 1, 1))
sketch10.addConstraint(Sketcher.Constraint("Radius", 1, 65.0))
sketch10.addConstraint(Sketcher.Constraint("DistanceX", 3, 2, 3, 1, 47.4))
sketch10.addConstraint(Sketcher.Constraint("DistanceY", -1, 1, 2, 2, 95.0))
pad3 = body.newObject("PartDesign::Pad", "Pad002")
pad3.Profile = sketch10
pad3.Length = 9.5

# Sketch on XZ plane
sketch11 = body.newObject("Sketcher::SketchObject", "Sketch010")
sketch11.AttachmentSupport = (doc.getObject("XZ_Plane"), [""])
sketch11.MapMode = "FlatFace"
sketch11.AttachmentOffset = App.Placement(V(0, 0, -95), App.Rotation())
sketch11.addGeometry(Part.LineSegment(V(-21, 6, 0), V(-21, 12, 0)), False)
sketch11.addGeometry(Part.LineSegment(V(-21, 12, 0), V(21, 12, 0)), False)
sketch11.addGeometry(Part.LineSegment(V(21, 12, 0), V(21, 6, 0)), False)
sketch11.addGeometry(Part.LineSegment(V(21, 6, 0), V(-21, 6, 0)), False)
sketch11.addConstraint(Sketcher.Constraint("Coincident", 0, 2, 1, 1))
sketch11.addConstraint(Sketcher.Constraint("Coincident", 1, 2, 2, 1))
sketch11.addConstraint(Sketcher.Constraint("Coincident", 2, 2, 3, 1))
sketch11.addConstraint(Sketcher.Constraint("Coincident", 3, 2, 0, 1))
sketch11.addConstraint(Sketcher.Constraint("Vertical", 0))
sketch11.addConstraint(Sketcher.Constraint("Horizontal", 1))
sketch11.addConstraint(Sketcher.Constraint("Vertical", 2))
sketch11.addConstraint(Sketcher.Constraint("Horizontal", 3))
sketch11.addConstraint(Sketcher.Constraint("DistanceY", 0, 1, 0, 2, 7.0))
sketch11.addConstraint(Sketcher.Constraint("DistanceX", 1, 1, 1, 2, 41.4))
sketch11.addConstraint(Sketcher.Constraint("DistanceX", 0, 2, -1, 1, 20.7))
sketch11.addConstraint(Sketcher.Constraint("DistanceY", -1, 1, 0, 2, 12.5))
pocket8 = body.newObject("PartDesign::Pocket", "Pocket007")
pocket8.Profile = sketch11
pocket8.Type = "ThroughAll"
pocket8.Reversed = True
doc.recompute()

fillet = body.newObject("PartDesign::Fillet", "Fillet")
fillet.Base = (pocket8, edges_at(pocket8, [
    (0, 65, 15),
    (-23.7, 60.525, 10.25),
    (23.7, 77.763, 15),
    (23.7, 60.525, 10.25),
    (0, 95, 15),
    (23.7, 95, 10.25),
    (-23.7, 77.763, 15),
    (-23.7, 95, 10.25),
    (22.207, 61.089, 5.5),
    (-23.7, 77.763, 5.5),
    (-22.2, 95, 5.5),
    (23.7, 77.763, 5.5),
    (22.2, 95, 5.5),
    (-22.207, 61.089, 5.5),
    (-20.7, 61.616, 9),
    (20.7, 61.616, 9),
    (0, 65, 12.5),
    (-20.7, 78.308, 5.5),
    (20.7, 78.308, 5.5),
    (-20.7, 95, 9),
    (0, 95, 12.5),
    (20.7, 95, 9),
]))
fillet.Radius = 1

doc.recompute()
